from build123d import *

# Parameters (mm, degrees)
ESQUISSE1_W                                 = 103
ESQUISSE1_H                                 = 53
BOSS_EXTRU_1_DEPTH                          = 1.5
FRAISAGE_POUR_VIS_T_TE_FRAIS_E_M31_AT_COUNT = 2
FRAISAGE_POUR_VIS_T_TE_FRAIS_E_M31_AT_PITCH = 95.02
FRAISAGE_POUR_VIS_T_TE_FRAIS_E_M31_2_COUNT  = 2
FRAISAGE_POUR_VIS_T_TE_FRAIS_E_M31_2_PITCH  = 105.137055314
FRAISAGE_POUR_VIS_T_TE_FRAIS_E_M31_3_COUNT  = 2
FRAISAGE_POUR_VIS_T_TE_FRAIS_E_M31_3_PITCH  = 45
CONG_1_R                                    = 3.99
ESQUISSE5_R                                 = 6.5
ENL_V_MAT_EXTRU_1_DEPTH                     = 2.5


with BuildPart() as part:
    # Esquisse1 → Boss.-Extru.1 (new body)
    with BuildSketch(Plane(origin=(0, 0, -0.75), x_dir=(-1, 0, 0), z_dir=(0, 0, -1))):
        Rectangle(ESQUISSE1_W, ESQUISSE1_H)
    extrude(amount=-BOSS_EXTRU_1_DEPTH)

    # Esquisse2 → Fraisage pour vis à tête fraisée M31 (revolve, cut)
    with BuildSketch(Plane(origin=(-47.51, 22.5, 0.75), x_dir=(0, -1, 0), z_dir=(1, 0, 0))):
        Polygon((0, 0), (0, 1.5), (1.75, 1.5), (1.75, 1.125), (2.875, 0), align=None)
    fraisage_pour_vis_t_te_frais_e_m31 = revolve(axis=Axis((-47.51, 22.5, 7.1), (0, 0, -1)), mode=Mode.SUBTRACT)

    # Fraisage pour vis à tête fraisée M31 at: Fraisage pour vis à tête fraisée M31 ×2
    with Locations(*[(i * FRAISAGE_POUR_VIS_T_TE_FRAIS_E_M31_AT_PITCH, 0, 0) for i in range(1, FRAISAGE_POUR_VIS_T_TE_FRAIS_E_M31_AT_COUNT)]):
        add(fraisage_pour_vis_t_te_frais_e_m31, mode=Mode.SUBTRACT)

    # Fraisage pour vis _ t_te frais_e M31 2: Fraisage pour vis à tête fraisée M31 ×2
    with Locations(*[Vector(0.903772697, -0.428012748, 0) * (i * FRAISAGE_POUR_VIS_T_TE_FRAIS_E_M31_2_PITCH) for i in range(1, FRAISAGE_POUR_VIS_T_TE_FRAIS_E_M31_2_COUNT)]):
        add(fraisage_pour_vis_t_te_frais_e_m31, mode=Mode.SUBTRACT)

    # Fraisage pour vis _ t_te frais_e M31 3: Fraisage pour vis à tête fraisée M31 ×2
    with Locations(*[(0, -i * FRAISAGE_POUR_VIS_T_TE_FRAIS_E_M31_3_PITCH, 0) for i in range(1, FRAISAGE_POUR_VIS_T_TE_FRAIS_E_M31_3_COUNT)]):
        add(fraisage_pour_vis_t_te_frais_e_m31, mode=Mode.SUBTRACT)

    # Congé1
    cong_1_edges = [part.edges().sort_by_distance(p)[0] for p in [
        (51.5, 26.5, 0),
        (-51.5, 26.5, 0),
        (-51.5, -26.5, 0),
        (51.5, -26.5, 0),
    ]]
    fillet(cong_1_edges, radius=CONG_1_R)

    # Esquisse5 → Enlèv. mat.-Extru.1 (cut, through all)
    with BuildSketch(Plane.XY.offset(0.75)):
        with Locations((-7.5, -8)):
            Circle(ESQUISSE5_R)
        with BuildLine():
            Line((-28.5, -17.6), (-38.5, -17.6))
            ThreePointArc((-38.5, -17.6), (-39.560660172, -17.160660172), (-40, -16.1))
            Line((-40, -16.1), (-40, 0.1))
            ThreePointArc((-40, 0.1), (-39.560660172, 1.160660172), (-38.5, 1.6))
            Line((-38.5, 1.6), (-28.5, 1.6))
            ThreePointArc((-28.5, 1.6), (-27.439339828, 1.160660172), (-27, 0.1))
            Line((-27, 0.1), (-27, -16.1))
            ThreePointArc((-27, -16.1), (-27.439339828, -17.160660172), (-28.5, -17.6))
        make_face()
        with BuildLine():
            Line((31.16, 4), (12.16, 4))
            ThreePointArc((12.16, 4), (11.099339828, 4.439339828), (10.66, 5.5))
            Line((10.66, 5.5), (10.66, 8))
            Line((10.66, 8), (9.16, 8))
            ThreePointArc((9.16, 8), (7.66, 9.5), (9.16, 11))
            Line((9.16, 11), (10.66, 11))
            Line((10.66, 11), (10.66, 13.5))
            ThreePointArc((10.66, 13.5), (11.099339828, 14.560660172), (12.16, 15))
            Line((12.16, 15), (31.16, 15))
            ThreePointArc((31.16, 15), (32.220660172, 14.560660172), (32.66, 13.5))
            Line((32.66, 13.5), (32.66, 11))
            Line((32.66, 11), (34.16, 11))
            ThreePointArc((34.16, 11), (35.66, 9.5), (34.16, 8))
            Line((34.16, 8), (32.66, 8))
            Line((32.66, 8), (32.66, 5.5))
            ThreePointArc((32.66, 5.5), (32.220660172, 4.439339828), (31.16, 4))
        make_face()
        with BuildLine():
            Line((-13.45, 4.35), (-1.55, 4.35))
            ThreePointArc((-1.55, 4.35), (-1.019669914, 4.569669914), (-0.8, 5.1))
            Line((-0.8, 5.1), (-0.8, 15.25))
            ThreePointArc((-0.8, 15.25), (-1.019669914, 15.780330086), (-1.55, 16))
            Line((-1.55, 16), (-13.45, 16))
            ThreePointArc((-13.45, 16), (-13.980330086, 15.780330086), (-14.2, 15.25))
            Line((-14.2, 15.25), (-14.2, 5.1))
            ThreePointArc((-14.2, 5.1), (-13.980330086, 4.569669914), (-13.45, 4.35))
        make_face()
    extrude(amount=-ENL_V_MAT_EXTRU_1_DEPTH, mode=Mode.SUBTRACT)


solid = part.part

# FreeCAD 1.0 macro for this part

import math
import FreeCAD as App
import Part
import Sketcher
Q = App.Units.Quantity


def edges_at(feature, points):
    """Names of the edges that pass closest to the given points."""
    edges = feature.Shape.Edges
    near = lambda p: min(range(len(edges)), key=lambda i: edges[i].distToShape(Part.Vertex(*p))[0])
    return sorted({f"Edge{near(p) + 1}" for p in points})

doc = App.newDocument("Part")
params = doc.addObject("Spreadsheet::Sheet", "Params")
for row, (alias, value) in enumerate([
    ("sketch1_width", "103 mm"),
    ("sketch1_height", "53 mm"),
    ("pad1_length", "1.5 mm"),
    ("sketch2_height", "1.5 mm"),
    ("sketch2_width", "1.75 mm"),
    ("groove_angle", "360 deg"),
    ("linearpattern_pitch", "95.02 mm"),
    ("linearpattern2_pitch", "105.137055 mm"),
    ("linearpattern3_pitch", "45 mm"),
    ("fillet_radius", "3.99 mm"),
    ("sketch3_diameter", "13 mm"),
    ("sketch3_radius", "1.5 mm"),
    ("sketch3_width", "10 mm"),
    ("sketch3_width2", "19 mm"),
    ("sketch3_radius2", "0.75 mm"),
], start=1):
    params.set(f"A{row}", alias)
    params.set(f"B{row}", "=" + value)
    params.setAlias(f"B{row}", alias)

body = doc.addObject("PartDesign::Body", "Body")

# Sketch on XY plane
sketch1 = body.newObject("Sketcher::SketchObject", "Sketch")
sketch1.AttachmentSupport = (doc.getObject("XY_Plane"), [""])
sketch1.MapMode = "FlatFace"
sketch1.AttachmentOffset = App.Placement(App.Vector(0, 0, -0.75), App.Rotation())
sketch1.addGeometry(Part.LineSegment(App.Vector(52, 26, 0), App.Vector(52, -26, 0)), False)
sketch1.addGeometry(Part.LineSegment(App.Vector(52, -26, 0), App.Vector(-52, -26, 0)), False)
sketch1.addGeometry(Part.LineSegment(App.Vector(-52, -26, 0), App.Vector(-52, 26, 0)), False)
sketch1.addGeometry(Part.LineSegment(App.Vector(-52, 26, 0), App.Vector(52, 26, 0)), False)
sketch1.addConstraint(Sketcher.Constraint("Coincident", 0, 2, 1, 1))
sketch1.addConstraint(Sketcher.Constraint("Coincident", 1, 2, 2, 1))
sketch1.addConstraint(Sketcher.Constraint("Coincident", 2, 2, 3, 1))
sketch1.addConstraint(Sketcher.Constraint("Coincident", 3, 2, 0, 1))
sketch1.addConstraint(Sketcher.Constraint("Vertical", 0))
sketch1.addConstraint(Sketcher.Constraint("Horizontal", 1))
sketch1.addConstraint(Sketcher.Constraint("Vertical", 2))
sketch1.addConstraint(Sketcher.Constraint("Horizontal", 3))
sketch1.addConstraint(Sketcher.Constraint("Symmetric", 0, 2, 2, 2, -1, 1))
sketch1.addConstraint(Sketcher.Constraint("DistanceX", 1, 2, 1, 1, 103.0))
sketch1.addConstraint(Sketcher.Constraint("DistanceY", 0, 2, 0, 1, 53.0))
sketch1.setExpression("Constraints[9]", "Params.sketch1_width")
sketch1.setExpression("Constraints[10]", "Params.sketch1_height")
pad1 = body.newObject("PartDesign::Pad", "Pad")
pad1.Profile = sketch1
pad1.setExpression("Length", "Params.pad1_length")

# Sketch on YZ plane
sketch2 = body.newObject("Sketcher::SketchObject", "Sketch001")
sketch2.AttachmentSupport = (doc.getObject("YZ_Plane"), [""])
sketch2.MapMode = "FlatFace"
sketch2.AttachmentOffset = App.Placement(App.Vector(0, 0, -47.51), App.Rotation())
sketch2.addGeometry(Part.LineSegment(App.Vector(22.5, -0.75, 0), App.Vector(22.5, 0.75, 0)), False)
sketch2.addGeometry(Part.LineSegment(App.Vector(22.5, 0.75, 0), App.Vector(19.62, 0.75, 0)), False)
sketch2.addGeometry(Part.LineSegment(App.Vector(19.62, 0.75, 0), App.Vector(20.75, -0.38, 0)), False)
sketch2.addGeometry(Part.LineSegment(App.Vector(20.75, -0.38, 0), App.Vector(20.75, -0.75, 0)), False)
sketch2.addGeometry(Part.LineSegment(App.Vector(20.75, -0.75, 0), App.Vector(22.5, -0.75, 0)), False)
sketch2.addGeometry(Part.LineSegment(App.Vector(22.5, 0.75, 0), App.Vector(22.5, -0.75, 0)), True)  # axis
sketch2.addConstraint(Sketcher.Constraint("Coincident", 0, 2, 1, 1))
sketch2.addConstraint(Sketcher.Constraint("Coincident", 1, 2, 2, 1))
sketch2.addConstraint(Sketcher.Constraint("Coincident", 2, 2, 3, 1))
sketch2.addConstraint(Sketcher.Constraint("Coincident", 3, 2, 4, 1))
sketch2.addConstraint(Sketcher.Constraint("Coincident", 4, 2, 0, 1))
sketch2.addConstraint(Sketcher.Constraint("Vertical", 0))
sketch2.addConstraint(Sketcher.Constraint("Horizontal", 1))
sketch2.addConstraint(Sketcher.Constraint("Vertical", 3))
sketch2.addConstraint(Sketcher.Constraint("Horizontal", 4))
sketch2.addConstraint(Sketcher.Constraint("Vertical", 5))
sketch2.addConstraint(Sketcher.Constraint("Coincident", 5, 1, 0, 2))
sketch2.addConstraint(Sketcher.Constraint("Horizontal", 3, 2, 5, 2))
sketch2.addConstraint(Sketcher.Constraint("Angle", 2, Q("-45 deg")))
sketch2.addConstraint(Sketcher.Constraint("DistanceY", 0, 1, 0, 2, 1.5))
sketch2.addConstraint(Sketcher.Constraint("DistanceX", 4, 1, 4, 2, 1.75))
sketch2.addConstraint(Sketcher.Constraint("DistanceX", -1, 1, 0, 2, 22.5))
sketch2.addConstraint(Sketcher.Constraint("DistanceX", 1, 2, 1, 1, 2.875))
sketch2.addConstraint(Sketcher.Constraint("DistanceY", -1, 1, 0, 2, 0.75))
sketch2.setExpression("Constraints[13]", "Params.sketch2_height")
sketch2.setExpression("Constraints[14]", "Params.sketch2_width")
groove = body.newObject("PartDesign::Groove", "Groove")
groove.Profile = sketch2
groove.ReferenceAxis = (sketch2, ["Axis0"])
groove.setExpression("Angle", "Params.groove_angle")
doc.recompute()

linearpattern = body.newObject("PartDesign::LinearPattern", "LinearPattern")
linearpattern.Originals = [groove]
linearpattern.Direction = (doc.getObject("X_Axis"), [""])
linearpattern.Mode = "offset"
linearpattern.setExpression("Offset", "Params.linearpattern_pitch")
linearpattern.Occurrences = 2
body.Tip = linearpattern
doc.recompute()

datumline = body.newObject("PartDesign::Line", "DatumLine")
datumline.Placement = App.Placement(App.Vector(0, 0, 0), App.Rotation(App.Vector(0, 0, 1), App.Vector(0.903772697, -0.428012748, 0)))
linearpattern2 = body.newObject("PartDesign::LinearPattern", "LinearPattern001")
linearpattern2.Originals = [groove]
linearpattern2.Direction = (datumline, [""])
linearpattern2.Mode = "offset"
linearpattern2.setExpression("Offset", "Params.linearpattern2_pitch")
linearpattern2.Occurrences = 2
body.Tip = linearpattern2
doc.recompute()

linearpattern3 = body.newObject("PartDesign::LinearPattern", "LinearPattern002")
linearpattern3.Originals = [groove]
linearpattern3.Direction = (doc.getObject("Y_Axis"), [""])
linearpattern3.Mode = "offset"
linearpattern3.setExpression("Offset", "Params.linearpattern3_pitch")
linearpattern3.Occurrences = 2
linearpattern3.Reversed = True
body.Tip = linearpattern3
doc.recompute()

fillet = body.newObject("PartDesign::Fillet", "Fillet")
fillet.Base = (linearpattern3, edges_at(linearpattern3, [
    (51.5, 26.5, 0),
    (-51.5, 26.5, 0),
    (-51.5, -26.5, 0),
    (51.5, -26.5, 0),
]))
fillet.setExpression("Radius", "Params.fillet_radius")

# Sketch on XY plane
sketch3 = body.newObject("Sketcher::SketchObject", "Sketch002")
sketch3.AttachmentSupport = (doc.getObject("XY_Plane"), [""])
sketch3.MapMode = "FlatFace"
sketch3.AttachmentOffset = App.Placement(App.Vector(0, 0, 0.75), App.Rotation())
sketch3.addGeometry(Part.Circle(App.Vector(-7.5, -8, 0), App.Vector(0, 0, 1), 6.5), False)
sketch3.addGeometry(Part.LineSegment(App.Vector(-38.5, -17.6, 0), App.Vector(-28.5, -17.6, 0)), False)
sketch3.addGeometry(Part.ArcOfCircle(Part.Circle(App.Vector(-28.5, -16.1, 0), App.Vector(0, 0, 1), 1.5), math.radians(-90), math.radians(0)), False)
sketch3.addGeometry(Part.LineSegment(App.Vector(-27, -16.1, 0), App.Vector(-27, 0.1, 0)), False)
sketch3.addGeometry(Part.ArcOfCircle(Part.Circle(App.Vector(-28.5, 0.1, 0), App.Vector(0, 0, 1), 1.5), math.radians(0), math.radians(90)), False)
sketch3.addGeometry(Part.LineSegment(App.Vector(-28.5, 1.6, 0), App.Vector(-38.5, 1.6, 0)), False)
sketch3.addGeometry(Part.ArcOfCircle(Part.Circle(App.Vector(-38.5, 0.1, 0), App.Vector(0, 0, 1), 1.5), math.radians(90), math.radians(180)), False)
sketch3.addGeometry(Part.LineSegment(App.Vector(-40, 0.1, 0), App.Vector(-40, -16.1, 0)), False)
sketch3.addGeometry(Part.ArcOfCircle(Part.Circle(App.Vector(-38.5, -16.1, 0), App.Vector(0, 0, 1), 1.5), math.radians(180), math.radians(270)), False)
sketch3.addGeometry(Part.LineSegment(App.Vector(12.2, 4, 0), App.Vector(31.2, 4, 0)), False)
sketch3.addGeometry(Part.ArcOfCircle(Part.Circle(App.Vector(31.2, 5.5, 0), App.Vector(0, 0, 1), 1.5), math.radians(-90), math.radians(0)), False)
sketch3.addGeometry(Part.LineSegment(App.Vector(32.7, 5.5, 0), App.Vector(32.7, 8, 0)), False)
sketch3.addGeometry(Part.LineSegment(App.Vector(32.7, 8, 0), App.Vector(34.2, 8, 0)), False)
sketch3.addGeometry(Part.ArcOfCircle(Part.Circle(App.Vector(34.2, 9.5, 0), App.Vector(0, 0, 1), 1.5), math.radians(-90), math.radians(90)), False)
sketch3.addGeometry(Part.LineSegment(App.Vector(34.2, 11, 0), App.Vector(32.7, 11, 0)), False)
sketch3.addGeometry(Part.LineSegment(App.Vector(32.7, 11, 0), App.Vector(32.7, 13.5, 0)), False)
sketch3.addGeometry(Part.ArcOfCircle(Part.Circle(App.Vector(31.2, 13.5, 0), App.Vector(0, 0, 1), 1.5), math.radians(0), math.radians(90)), False)
sketch3.addGeometry(Part.LineSegment(App.Vector(31.2, 15, 0), App.Vector(12.2, 15, 0)), False)
sketch3.addGeometry(Part.ArcOfCircle(Part.Circle(App.Vector(12.2, 13.5, 0), App.Vector(0, 0, 1), 1.5), math.radians(90), math.radians(180)), False)
sketch3.addGeometry(Part.LineSegment(App.Vector(10.7, 13.5, 0), App.Vector(10.7, 11, 0)), False)
sketch3.addGeometry(Part.LineSegment(App.Vector(10.7, 11, 0), App.Vector(9.2, 11, 0)), False)
sketch3.addGeometry(Part.ArcOfCircle(Part.Circle(App.Vector(9.2, 9.5, 0), App.Vector(0, 0, 1), 1.5), math.radians(90), math.radians(270)), False)
sketch3.addGeometry(Part.LineSegment(App.Vector(9.2, 8, 0), App.Vector(10.7, 8, 0)), False)
sketch3.addGeometry(Part.LineSegment(App.Vector(10.7, 8, 0), App.Vector(10.7, 5.5, 0)), False)
sketch3.addGeometry(Part.ArcOfCircle(Part.Circle(App.Vector(12.2, 5.5, 0), App.Vector(0, 0, 1), 1.5), math.radians(180), math.radians(270)), False)
sketch3.addGeometry(Part.LineSegment(App.Vector(-13.4, 4.3, 0), App.Vector(-1.6, 4.3, 0)), False)
sketch3.addGeometry(Part.ArcOfCircle(Part.Circle(App.Vector(-1.6, 5.1, 0), App.Vector(0, 0, 1), 0.8), math.radians(-90), math.radians(0)), False)
sketch3.addGeometry(Part.LineSegment(App.Vector(-0.8, 5.1, 0), App.Vector(-0.8, 15.2, 0)), False)
sketch3.addGeometry(Part.ArcOfCircle(Part.Circle(App.Vector(-1.6, 15.2, 0), App.Vector(0, 0, 1), 0.8), math.radians(0), math.radians(90)), False)
sketch3.addGeometry(Part.LineSegment(App.Vector(-1.6, 16, 0), App.Vector(-13.4, 16, 0)), False)
sketch3.addGeometry(Part.ArcOfCircle(Part.Circle(App.Vector(-13.4, 15.2, 0), App.Vector(0, 0, 1), 0.8), math.radians(90), math.radians(180)), False)
sketch3.addGeometry(Part.LineSegment(App.Vector(-14.2, 15.2, 0), App.Vector(-14.2, 5.1, 0)), False)
sketch3.addGeometry(Part.ArcOfCircle(Part.Circle(App.Vector(-13.4, 5.1, 0), App.Vector(0, 0, 1), 0.8), math.radians(180), math.radians(270)), False)
sketch3.addConstraint(Sketcher.Constraint("Tangent", 1, 2, 2, 1))
sketch3.addConstraint(Sketcher.Constraint("Tangent", 2, 2, 3, 1))
sketch3.addConstraint(Sketcher.Constraint("Tangent", 3, 2, 4, 1))
sketch3.addConstraint(Sketcher.Constraint("Tangent", 4, 2, 5, 1))
sketch3.addConstraint(Sketcher.Constraint("Tangent", 5, 2, 6, 1))
sketch3.addConstraint(Sketcher.Constraint("Tangent", 6, 2, 7, 1))
sketch3.addConstraint(Sketcher.Constraint("Tangent", 7, 2, 8, 1))
sketch3.addConstraint(Sketcher.Constraint("Tangent", 8, 2, 1, 1))
sketch3.addConstraint(Sketcher.Constraint("Tangent", 9, 2, 10, 1))
sketch3.addConstraint(Sketcher.Constraint("Tangent", 10, 2, 11, 1))
sketch3.addConstraint(Sketcher.Constraint("Coincident", 11, 2, 12, 1))
sketch3.addConstraint(Sketcher.Constraint("Tangent", 12, 2, 13, 1))
sketch3.addConstraint(Sketcher.Constraint("Tangent", 13, 2, 14, 1))
sketch3.addConstraint(Sketcher.Constraint("Coincident", 14, 2, 15, 1))
sketch3.addConstraint(Sketcher.Constraint("Tangent", 15, 2, 16, 1))
sketch3.addConstraint(Sketcher.Constraint("Tangent", 16, 2, 17, 1))
sketch3.addConstraint(Sketcher.Constraint("Tangent", 17, 2, 18, 1))
sketch3.addConstraint(Sketcher.Constraint("Tangent", 18, 2, 19, 1))
sketch3.addConstraint(Sketcher.Constraint("Coincident", 19, 2, 20, 1))
sketch3.addConstraint(Sketcher.Constraint("Tangent", 20, 2, 21, 1))
sketch3.addConstraint(Sketcher.Constraint("Tangent", 21, 2, 22, 1))
sketch3.addConstraint(Sketcher.Constraint("Coincident", 22, 2, 23, 1))
sketch3.addConstraint(Sketcher.Constraint("Tangent", 23, 2, 24, 1))
sketch3.addConstraint(Sketcher.Constraint("Tangent", 24, 2, 9, 1))
sketch3.addConstraint(Sketcher.Constraint("Tangent", 25, 2, 26, 1))
sketch3.addConstraint(Sketcher.Constraint("Tangent", 26, 2, 27, 1))
sketch3.addConstraint(Sketcher.Constraint("Tangent", 27, 2, 28, 1))
sketch3.addConstraint(Sketcher.Constraint("Tangent", 28, 2, 29, 1))
sketch3.addConstraint(Sketcher.Constraint("Tangent", 29, 2, 30, 1))
sketch3.addConstraint(Sketcher.Constraint("Tangent", 30, 2, 31, 1))
sketch3.addConstraint(Sketcher.Constraint("Tangent", 31, 2, 32, 1))
sketch3.addConstraint(Sketcher.Constraint("Tangent", 32, 2, 25, 1))
sketch3.addConstraint(Sketcher.Constraint("Horizontal", 1))
sketch3.addConstraint(Sketcher.Constraint("Vertical", 3))
sketch3.addConstraint(Sketcher.Constraint("Horizontal", 5))
sketch3.addConstraint(Sketcher.Constraint("Vertical", 7))
sketch3.addConstraint(Sketcher.Constraint("Horizontal", 9))
sketch3.addConstraint(Sketcher.Constraint("Vertical", 11))
sketch3.addConstraint(Sketcher.Constraint("Horizontal", 12))
sketch3.addConstraint(Sketcher.Constraint("Horizontal", 14))
sketch3.addConstraint(Sketcher.Constraint("Vertical", 15))
sketch3.addConstraint(Sketcher.Constraint("Horizontal", 17))
sketch3.addConstraint(Sketcher.Constraint("Vertical", 19))
sketch3.addConstraint(Sketcher.Constraint("Horizontal", 20))
sketch3.addConstraint(Sketcher.Constraint("Horizontal", 22))
sketch3.addConstraint(Sketcher.Constraint("Vertical", 23))
sketch3.addConstraint(Sketcher.Constraint("Horizontal", 25))
sketch3.addConstraint(Sketcher.Constraint("Vertical", 27))
sketch3.addConstraint(Sketcher.Constraint("Horizontal", 29))
sketch3.addConstraint(Sketcher.Constraint("Vertical", 31))
sketch3.addConstraint(Sketcher.Constraint("Equal", 2, 4))
sketch3.addConstraint(Sketcher.Constraint("Equal", 4, 6))
sketch3.addConstraint(Sketcher.Constraint("Equal", 6, 8))
sketch3.addConstraint(Sketcher.Constraint("Equal", 8, 10))
sketch3.addConstraint(Sketcher.Constraint("Equal", 10, 13))
sketch3.addConstraint(Sketcher.Constraint("Equal", 13, 16))
sketch3.addConstraint(Sketcher.Constraint("Equal", 16, 18))
sketch3.addConstraint(Sketcher.Constraint("Equal", 18, 21))
sketch3.addConstraint(Sketcher.Constraint("Equal", 21, 24))
sketch3.addConstraint(Sketcher.Constraint("Equal", 26, 28))
sketch3.addConstraint(Sketcher.Constraint("Equal", 28, 30))
sketch3.addConstraint(Sketcher.Constraint("Equal", 30, 32))
sketch3.addConstraint(Sketcher.Constraint("Horizontal", 13, 3, 21, 3))
sketch3.addConstraint(Sketcher.Constraint("Vertical", 10, 3, 16, 3))
sketch3.addConstraint(Sketcher.Constraint("Vertical", 18, 3, 24, 3))
sketch3.addConstraint(Sketcher.Constraint("Equal", 14, 20))
sketch3.addConstraint(Sketcher.Constraint("Equal", 11, 15))
sketch3.addConstraint(Sketcher.Constraint("Diameter", 0, 13.0))
sketch3.addConstraint(Sketcher.Constraint("Radius", 2, 1.5))
sketch3.addConstraint(Sketcher.Constraint("DistanceX", 1, 1, 1, 2, 10.0))
sketch3.addConstraint(Sketcher.Constraint("DistanceX", 9, 1, 9, 2, 19.0))
sketch3.addConstraint(Sketcher.Constraint("Radius", 26, 0.75))
sketch3.addConstraint(Sketcher.Constraint("DistanceX", 12, 1, 12, 2, 1.5))
sketch3.addConstraint(Sketcher.Constraint("DistanceX", 25, 1, 25, 2, 11.9))
sketch3.addConstraint(Sketcher.Constraint("DistanceY", 3, 1, 3, 2, 16.2))
sketch3.addConstraint(Sketcher.Constraint("DistanceY", 11, 1, 11, 2, 2.5))
sketch3.addConstraint(Sketcher.Constraint("DistanceY", 0, 3, -1, 1, 8.0))
sketch3.addConstraint(Sketcher.Constraint("DistanceX", 2, 2, -1, 1, 27.0))
sketch3.addConstraint(Sketcher.Constraint("DistanceY", -1, 1, 9, 2, 4.0))
sketch3.addConstraint(Sketcher.Constraint("DistanceY", -1, 1, 28, 2, 16.0))
sketch3.addConstraint(Sketcher.Constraint("DistanceX", 2, 3, 0, 3, 21.0))
sketch3.addConstraint(Sketcher.Constraint("DistanceY", 4, 3, 26, 3, 5.0))
sketch3.addConstraint(Sketcher.Constraint("DistanceY", 27, 1, 27, 2, 10.15))
sketch3.addConstraint(Sketcher.Constraint("DistanceX", 26, 2, -1, 1, 0.8))
sketch3.addConstraint(Sketcher.Constraint("DistanceX", -1, 1, 10, 3, 31.16))
sketch3.setExpression("Constraints[67]", "Params.sketch3_diameter")
sketch3.setExpression("Constraints[68]", "Params.sketch3_radius")
sketch3.setExpression("Constraints[69]", "Params.sketch3_width")
sketch3.setExpression("Constraints[70]", "Params.sketch3_width2")
sketch3.setExpression("Constraints[71]", "Params.sketch3_radius2")
pocket1 = body.newObject("PartDesign::Pocket", "Pocket")
pocket1.Profile = sketch3
pocket1.Type = "ThroughAll"

doc.recompute()
